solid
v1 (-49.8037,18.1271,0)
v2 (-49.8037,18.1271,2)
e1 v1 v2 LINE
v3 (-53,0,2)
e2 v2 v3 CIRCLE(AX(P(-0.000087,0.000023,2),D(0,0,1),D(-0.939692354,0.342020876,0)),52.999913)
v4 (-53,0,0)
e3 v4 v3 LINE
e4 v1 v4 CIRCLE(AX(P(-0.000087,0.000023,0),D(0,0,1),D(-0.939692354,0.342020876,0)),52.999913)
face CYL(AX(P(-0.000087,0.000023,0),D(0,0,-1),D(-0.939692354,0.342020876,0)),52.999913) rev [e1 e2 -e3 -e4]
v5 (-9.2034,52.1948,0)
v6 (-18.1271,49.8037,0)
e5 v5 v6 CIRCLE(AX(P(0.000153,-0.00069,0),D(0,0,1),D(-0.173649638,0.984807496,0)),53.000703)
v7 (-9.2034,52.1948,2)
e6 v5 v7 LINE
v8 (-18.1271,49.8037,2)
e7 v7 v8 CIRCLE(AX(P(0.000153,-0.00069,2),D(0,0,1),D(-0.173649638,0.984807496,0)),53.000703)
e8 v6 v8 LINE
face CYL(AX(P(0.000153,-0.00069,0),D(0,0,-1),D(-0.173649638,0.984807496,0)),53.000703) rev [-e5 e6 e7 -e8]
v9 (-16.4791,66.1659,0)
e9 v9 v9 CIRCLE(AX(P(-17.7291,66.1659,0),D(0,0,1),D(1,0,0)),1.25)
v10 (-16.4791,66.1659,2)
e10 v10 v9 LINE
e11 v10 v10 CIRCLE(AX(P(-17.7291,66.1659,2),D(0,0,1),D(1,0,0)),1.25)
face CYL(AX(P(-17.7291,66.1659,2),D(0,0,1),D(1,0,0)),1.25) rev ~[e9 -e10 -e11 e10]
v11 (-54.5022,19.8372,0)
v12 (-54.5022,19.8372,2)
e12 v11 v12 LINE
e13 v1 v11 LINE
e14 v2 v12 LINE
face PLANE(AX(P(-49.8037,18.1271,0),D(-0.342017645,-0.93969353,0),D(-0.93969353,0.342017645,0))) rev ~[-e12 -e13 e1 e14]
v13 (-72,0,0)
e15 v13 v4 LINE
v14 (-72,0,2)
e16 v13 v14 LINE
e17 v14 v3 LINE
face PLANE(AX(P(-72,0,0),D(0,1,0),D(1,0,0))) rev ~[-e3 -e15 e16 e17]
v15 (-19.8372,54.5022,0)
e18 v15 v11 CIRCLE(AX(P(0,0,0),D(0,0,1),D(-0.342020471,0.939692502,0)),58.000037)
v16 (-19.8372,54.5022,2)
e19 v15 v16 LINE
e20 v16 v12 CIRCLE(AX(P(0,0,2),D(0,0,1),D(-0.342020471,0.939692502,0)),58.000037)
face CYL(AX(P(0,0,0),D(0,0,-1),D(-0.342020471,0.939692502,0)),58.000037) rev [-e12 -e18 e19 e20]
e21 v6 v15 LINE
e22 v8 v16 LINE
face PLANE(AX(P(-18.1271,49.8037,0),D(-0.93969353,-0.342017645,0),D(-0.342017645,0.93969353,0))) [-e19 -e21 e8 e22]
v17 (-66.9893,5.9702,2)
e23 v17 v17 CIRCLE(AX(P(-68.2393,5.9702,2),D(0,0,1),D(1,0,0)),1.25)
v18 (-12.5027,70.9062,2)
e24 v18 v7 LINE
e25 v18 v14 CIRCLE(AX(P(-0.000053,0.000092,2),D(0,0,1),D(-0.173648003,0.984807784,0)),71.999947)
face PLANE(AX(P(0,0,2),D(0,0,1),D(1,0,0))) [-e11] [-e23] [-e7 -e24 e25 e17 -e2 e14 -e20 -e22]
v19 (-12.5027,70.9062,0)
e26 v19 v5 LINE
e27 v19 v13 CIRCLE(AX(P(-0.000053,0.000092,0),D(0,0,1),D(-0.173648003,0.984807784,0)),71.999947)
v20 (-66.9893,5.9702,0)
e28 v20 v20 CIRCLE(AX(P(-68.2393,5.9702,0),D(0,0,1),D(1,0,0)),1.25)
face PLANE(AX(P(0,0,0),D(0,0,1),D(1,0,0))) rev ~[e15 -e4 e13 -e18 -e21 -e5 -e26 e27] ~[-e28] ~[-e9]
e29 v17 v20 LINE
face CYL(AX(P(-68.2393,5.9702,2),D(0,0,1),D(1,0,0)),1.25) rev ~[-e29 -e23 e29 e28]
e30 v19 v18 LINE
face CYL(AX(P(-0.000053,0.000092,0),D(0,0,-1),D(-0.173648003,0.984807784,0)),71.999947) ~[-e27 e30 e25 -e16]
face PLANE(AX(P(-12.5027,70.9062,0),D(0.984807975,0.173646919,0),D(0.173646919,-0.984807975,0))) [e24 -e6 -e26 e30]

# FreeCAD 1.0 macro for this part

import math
import FreeCAD as App
import Part
import Sketcher
Q = App.Units.Quantity

doc = App.newDocument("Part")
body = doc.addObject("PartDesign::Body", "Body")

# Sketch on XY plane
sketch1 = doc.addObject("Sketcher::SketchObject", "Sketch")
body.addObject(sketch1)
sketch1.AttachmentSupport = (doc.XY_Plane, [""])
sketch1.MapMode = "FlatFace"
sketch1.addGeometry(Part.LineSegment(App.Vector(-9, 52, 0), App.Vector(-13, 71, 0)), False)
sketch1.addGeometry(Part.ArcOfCircle(Part.Circle(App.Vector(0, 0, 0), App.Vector(0, 0, 1), 72), math.radians(100), math.radians(180)), False)
sketch1.addGeometry(Part.LineSegment(App.Vector(-72, 0, 0), App.Vector(-53, 0, 0)), False)
sketch1.addGeometry(Part.ArcOfCircle(Part.Circle(App.Vector(0, 0, 0), App.Vector(0, 0, 1), 53), math.radians(160), math.radians(180)), False)
sketch1.addGeometry(Part.LineSegment(App.Vector(-50, 18, 0), App.Vector(-55, 20, 0)), False)
sketch1.addGeometry(Part.ArcOfCircle(Part.Circle(App.Vector(0, 0, 0), App.Vector(0, 0, 1), 58), math.radians(110), math.radians(160)), False)
sketch1.addGeometry(Part.LineSegment(App.Vector(-20, 55, 0), App.Vector(-18, 50, 0)), False)
sketch1.addGeometry(Part.ArcOfCircle(Part.Circle(App.Vector(0, 0, 0), App.Vector(0, 0, 1), 53), math.radians(100), math.radians(110)), False)
sketch1.addConstraint(Sketcher.Constraint("Coincident", 0, 2, 1, 1))
sketch1.addConstraint(Sketcher.Constraint("Coincident", 1, 2, 2, 1))
sketch1.addConstraint(Sketcher.Constraint("Coincident", 2, 2, 3, 2))
sketch1.addConstraint(Sketcher.Constraint("Coincident", 3, 1, 4, 1))
sketch1.addConstraint(Sketcher.Constraint("Coincident", 4, 2, 5, 2))
sketch1.addConstraint(Sketcher.Constraint("Coincident", 5, 1, 6, 1))
sketch1.addConstraint(Sketcher.Constraint("Coincident", 6, 2, 7, 2))
sketch1.addConstraint(Sketcher.Constraint("Coincident", 7, 1, 0, 1))
sketch1.addConstraint(Sketcher.Constraint("Horizontal", 2))
sketch1.addConstraint(Sketcher.Constraint("Coincident", 1, 3, -1, 1))
sketch1.addConstraint(Sketcher.Constraint("Coincident", 3, 3, -1, 1))
sketch1.addConstraint(Sketcher.Constraint("Coincident", 5, 3, -1, 1))
sketch1.addConstraint(Sketcher.Constraint("Coincident", 7, 3, -1, 1))
sketch1.addConstraint(Sketcher.Constraint("Equal", 3, 7))
sketch1.addConstraint(Sketcher.Constraint("PointOnObject", 1, 2, -1))
sketch1.addConstraint(Sketcher.Constraint("Radius", 1, 72.0))
sketch1.addConstraint(Sketcher.Constraint("Radius", 3, 53.0))
sketch1.addConstraint(Sketcher.Constraint("Radius", 5, 58.0))
sketch1.addConstraint(Sketcher.Constraint("Angle", 0, Q("100 deg")))
sketch1.addConstraint(Sketcher.Constraint("Angle", 4, Q("160.0002 deg")))
sketch1.addConstraint(Sketcher.Constraint("Angle", 6, Q("-70.0002 deg")))
sketch1.addConstraint(Sketcher.Constraint("DistanceY", -1, 1, 3, 1, 18.127))
sketch1.addConstraint(Sketcher.Constraint("DistanceX", 6, 2, -1, 1, 18.127))
sketch1.addConstraint(Sketcher.Constraint("DistanceY", 5, 1, 0, 2, 16.404))
pad1 = doc.addObject("PartDesign::Pad", "Pad")
body.addObject(pad1)
pad1.Profile = sketch1
pad1.Length = 2

# Sketch on XY plane
sketch2 = doc.addObject("Sketcher::SketchObject", "Sketch001")
body.addObject(sketch2)
sketch2.AttachmentSupport = (doc.XY_Plane, [""])
sketch2.MapMode = "FlatFace"
sketch2.AttachmentOffset = App.Placement(App.Vector(0, 0, 2), App.Rotation())
sketch2.addGeometry(Part.Circle(App.Vector(-68.2, 6, 0), App.Vector(0, 0, 1), 1.2), False)
sketch2.addGeometry(Part.Circle(App.Vector(-17.7, 66.2, 0), App.Vector(0, 0, 1), 1.2), False)
sketch2.addConstraint(Sketcher.Constraint("Equal", 0, 1))
sketch2.addConstraint(Sketcher.Constraint("Diameter", 0, 2.5))
sketch2.addConstraint(Sketcher.Constraint("DistanceX", 1, 3, -1, 1, 17.729))
sketch2.addConstraint(Sketcher.Constraint("DistanceY", -1, 1, 1, 3, 66.166))
sketch2.addConstraint(Sketcher.Constraint("DistanceX", 0, 3, -1, 1, 68.2393))
sketch2.addConstraint(Sketcher.Constraint("DistanceY", -1, 1, 0, 3, 5.9702))
pocket1 = doc.addObject("PartDesign::Pocket", "Pocket")
body.addObject(pocket1)
pocket1.Profile = sketch2
pocket1.Length = 2

doc.recompute()
